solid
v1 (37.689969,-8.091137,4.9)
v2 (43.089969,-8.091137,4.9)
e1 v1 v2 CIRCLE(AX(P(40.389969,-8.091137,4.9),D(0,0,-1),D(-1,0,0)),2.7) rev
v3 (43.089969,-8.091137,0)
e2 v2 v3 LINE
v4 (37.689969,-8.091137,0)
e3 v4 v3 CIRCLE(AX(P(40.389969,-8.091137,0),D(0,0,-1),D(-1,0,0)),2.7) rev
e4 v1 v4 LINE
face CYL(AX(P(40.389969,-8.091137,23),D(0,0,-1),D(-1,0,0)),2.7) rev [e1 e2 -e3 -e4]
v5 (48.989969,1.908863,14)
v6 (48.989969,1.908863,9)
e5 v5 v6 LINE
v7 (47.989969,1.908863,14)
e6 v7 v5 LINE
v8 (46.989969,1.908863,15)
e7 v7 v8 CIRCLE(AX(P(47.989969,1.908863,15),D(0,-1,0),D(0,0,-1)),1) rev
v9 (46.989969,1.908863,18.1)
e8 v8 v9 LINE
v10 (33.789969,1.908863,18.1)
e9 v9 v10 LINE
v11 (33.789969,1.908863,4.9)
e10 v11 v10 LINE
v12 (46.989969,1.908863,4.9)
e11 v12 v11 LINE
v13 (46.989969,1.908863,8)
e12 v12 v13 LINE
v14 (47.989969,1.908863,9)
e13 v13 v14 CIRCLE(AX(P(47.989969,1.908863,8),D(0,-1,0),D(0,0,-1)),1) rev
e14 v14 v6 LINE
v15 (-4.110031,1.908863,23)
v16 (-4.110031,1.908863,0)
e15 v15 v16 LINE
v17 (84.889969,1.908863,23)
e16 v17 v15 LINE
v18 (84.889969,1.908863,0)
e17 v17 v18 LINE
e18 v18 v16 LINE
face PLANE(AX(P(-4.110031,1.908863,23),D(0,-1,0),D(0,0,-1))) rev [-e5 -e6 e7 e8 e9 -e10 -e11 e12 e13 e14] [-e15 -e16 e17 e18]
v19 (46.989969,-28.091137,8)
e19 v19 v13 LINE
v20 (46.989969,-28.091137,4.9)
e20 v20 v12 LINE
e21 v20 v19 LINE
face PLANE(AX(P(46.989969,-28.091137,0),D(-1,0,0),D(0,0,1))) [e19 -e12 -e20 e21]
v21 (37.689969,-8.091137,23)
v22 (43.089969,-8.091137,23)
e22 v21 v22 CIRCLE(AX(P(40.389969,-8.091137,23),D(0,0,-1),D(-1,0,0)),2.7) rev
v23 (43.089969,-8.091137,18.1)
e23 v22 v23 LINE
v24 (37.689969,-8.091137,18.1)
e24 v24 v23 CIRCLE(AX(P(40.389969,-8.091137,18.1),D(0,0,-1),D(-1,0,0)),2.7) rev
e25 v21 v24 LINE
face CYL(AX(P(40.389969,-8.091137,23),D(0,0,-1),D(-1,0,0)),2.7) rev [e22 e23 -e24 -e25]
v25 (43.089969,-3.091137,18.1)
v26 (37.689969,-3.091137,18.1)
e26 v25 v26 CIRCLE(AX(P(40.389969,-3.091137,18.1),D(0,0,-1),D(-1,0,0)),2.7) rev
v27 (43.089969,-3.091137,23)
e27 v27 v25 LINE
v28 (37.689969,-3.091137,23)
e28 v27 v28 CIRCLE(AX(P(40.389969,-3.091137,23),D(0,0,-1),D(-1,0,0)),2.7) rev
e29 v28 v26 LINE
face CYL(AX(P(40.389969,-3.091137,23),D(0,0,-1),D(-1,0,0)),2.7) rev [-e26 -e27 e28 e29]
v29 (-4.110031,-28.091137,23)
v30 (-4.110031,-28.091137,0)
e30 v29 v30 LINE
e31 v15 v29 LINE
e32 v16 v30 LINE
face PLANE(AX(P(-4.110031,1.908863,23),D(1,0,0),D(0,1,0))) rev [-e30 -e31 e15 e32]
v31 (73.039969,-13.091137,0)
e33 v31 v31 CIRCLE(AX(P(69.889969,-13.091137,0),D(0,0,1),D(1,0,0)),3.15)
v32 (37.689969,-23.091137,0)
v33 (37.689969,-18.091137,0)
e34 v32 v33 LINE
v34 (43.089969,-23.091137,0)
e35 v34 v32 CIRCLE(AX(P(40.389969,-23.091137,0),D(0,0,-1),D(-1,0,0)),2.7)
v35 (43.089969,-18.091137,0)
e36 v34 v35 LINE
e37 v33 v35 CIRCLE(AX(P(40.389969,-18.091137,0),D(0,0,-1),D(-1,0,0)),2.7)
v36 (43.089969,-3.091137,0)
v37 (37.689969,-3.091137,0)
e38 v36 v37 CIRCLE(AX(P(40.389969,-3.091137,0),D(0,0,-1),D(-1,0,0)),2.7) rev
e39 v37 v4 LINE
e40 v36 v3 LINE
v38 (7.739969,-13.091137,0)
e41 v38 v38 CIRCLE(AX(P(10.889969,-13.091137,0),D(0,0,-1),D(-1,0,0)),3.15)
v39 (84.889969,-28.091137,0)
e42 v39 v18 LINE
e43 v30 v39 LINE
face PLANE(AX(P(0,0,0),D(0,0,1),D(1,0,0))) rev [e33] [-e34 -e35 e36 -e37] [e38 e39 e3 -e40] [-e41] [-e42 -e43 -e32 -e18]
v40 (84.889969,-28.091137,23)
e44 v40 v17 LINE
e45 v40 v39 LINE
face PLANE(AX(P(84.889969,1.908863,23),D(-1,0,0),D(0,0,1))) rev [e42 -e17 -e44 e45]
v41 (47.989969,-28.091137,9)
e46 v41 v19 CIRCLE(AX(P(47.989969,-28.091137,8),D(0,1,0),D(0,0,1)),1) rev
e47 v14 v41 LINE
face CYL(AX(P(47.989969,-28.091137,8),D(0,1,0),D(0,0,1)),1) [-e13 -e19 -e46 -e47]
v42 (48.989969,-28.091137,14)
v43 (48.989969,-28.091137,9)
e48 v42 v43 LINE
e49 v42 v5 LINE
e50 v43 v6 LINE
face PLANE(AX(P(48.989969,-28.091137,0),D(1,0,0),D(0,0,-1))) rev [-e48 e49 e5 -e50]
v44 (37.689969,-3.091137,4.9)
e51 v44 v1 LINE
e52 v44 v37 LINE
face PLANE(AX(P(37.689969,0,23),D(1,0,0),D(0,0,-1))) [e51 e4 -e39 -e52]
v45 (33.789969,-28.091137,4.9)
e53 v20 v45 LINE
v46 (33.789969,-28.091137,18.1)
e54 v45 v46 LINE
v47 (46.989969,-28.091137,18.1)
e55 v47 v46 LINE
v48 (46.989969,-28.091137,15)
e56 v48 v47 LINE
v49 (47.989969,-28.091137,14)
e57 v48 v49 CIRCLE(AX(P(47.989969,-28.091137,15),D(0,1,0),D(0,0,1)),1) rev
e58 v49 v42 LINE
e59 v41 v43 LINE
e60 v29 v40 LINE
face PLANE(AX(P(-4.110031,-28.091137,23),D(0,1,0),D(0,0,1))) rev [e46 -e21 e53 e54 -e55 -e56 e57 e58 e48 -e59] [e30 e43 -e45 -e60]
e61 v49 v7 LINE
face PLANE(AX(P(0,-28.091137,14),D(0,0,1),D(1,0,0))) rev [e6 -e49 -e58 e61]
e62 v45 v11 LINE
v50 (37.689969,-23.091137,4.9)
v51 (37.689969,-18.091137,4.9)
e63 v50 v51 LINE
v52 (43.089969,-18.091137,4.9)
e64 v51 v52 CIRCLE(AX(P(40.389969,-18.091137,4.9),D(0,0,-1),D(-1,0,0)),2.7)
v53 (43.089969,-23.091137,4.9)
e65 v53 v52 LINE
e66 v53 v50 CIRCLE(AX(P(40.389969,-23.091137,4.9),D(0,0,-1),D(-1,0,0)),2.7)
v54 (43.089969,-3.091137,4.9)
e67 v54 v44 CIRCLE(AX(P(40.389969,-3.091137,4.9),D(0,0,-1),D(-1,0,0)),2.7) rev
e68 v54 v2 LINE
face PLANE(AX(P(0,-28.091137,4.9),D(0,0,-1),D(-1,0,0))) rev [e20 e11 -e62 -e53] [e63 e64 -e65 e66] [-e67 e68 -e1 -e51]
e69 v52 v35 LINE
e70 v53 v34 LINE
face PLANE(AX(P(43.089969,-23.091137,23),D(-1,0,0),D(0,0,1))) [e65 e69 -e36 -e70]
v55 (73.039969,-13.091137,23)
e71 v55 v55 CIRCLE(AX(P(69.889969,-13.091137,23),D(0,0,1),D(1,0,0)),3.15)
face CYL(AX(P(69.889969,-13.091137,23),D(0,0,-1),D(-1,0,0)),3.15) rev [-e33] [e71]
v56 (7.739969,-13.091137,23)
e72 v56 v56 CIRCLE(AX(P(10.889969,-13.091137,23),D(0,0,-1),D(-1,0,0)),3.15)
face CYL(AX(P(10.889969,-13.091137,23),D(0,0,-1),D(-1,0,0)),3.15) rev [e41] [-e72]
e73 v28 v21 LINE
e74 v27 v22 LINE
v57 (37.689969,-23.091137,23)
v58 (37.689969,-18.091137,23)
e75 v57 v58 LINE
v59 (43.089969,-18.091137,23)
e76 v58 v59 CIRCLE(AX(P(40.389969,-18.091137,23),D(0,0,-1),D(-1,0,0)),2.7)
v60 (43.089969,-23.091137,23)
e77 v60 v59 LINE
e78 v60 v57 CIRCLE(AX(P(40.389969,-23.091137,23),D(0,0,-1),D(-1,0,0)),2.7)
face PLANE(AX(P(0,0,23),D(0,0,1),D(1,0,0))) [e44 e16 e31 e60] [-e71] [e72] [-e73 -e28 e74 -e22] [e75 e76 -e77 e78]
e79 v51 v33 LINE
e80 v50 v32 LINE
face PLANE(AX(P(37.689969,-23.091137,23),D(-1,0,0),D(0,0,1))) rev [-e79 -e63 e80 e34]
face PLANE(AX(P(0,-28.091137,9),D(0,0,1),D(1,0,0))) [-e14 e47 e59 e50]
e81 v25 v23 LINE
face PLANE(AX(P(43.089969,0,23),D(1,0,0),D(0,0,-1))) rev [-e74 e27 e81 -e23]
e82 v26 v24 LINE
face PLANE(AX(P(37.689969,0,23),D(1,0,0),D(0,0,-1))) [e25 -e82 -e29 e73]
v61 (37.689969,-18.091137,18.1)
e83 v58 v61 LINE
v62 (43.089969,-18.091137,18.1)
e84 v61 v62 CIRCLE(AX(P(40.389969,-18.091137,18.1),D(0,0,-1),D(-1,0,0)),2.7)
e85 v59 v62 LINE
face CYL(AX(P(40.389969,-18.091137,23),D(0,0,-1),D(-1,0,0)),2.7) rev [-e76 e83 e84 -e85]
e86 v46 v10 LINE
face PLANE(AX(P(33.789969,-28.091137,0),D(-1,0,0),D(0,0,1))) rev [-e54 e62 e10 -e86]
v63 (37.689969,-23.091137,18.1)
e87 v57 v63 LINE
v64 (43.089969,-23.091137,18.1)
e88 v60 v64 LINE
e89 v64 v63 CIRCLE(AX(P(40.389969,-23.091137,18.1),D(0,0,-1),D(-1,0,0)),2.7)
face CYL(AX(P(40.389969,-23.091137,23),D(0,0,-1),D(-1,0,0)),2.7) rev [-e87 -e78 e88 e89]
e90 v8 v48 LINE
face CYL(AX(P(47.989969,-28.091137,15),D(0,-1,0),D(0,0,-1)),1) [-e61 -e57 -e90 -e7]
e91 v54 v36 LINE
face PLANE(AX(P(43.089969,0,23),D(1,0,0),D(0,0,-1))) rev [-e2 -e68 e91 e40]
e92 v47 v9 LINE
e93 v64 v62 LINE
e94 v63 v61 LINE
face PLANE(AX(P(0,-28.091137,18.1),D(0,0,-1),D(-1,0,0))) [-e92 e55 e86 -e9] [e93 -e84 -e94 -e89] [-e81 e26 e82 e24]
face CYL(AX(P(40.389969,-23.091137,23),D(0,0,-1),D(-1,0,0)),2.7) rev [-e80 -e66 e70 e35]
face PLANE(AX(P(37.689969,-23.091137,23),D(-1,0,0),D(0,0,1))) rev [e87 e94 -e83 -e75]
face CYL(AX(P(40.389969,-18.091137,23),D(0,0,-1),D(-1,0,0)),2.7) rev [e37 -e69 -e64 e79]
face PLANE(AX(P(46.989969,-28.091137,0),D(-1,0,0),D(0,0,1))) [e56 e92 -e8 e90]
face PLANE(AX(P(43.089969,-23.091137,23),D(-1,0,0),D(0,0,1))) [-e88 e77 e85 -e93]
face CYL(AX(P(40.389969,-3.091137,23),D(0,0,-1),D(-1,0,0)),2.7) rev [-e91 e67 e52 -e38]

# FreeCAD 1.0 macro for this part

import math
import FreeCAD as App
import Part
import Sketcher
from FreeCAD import Vector
Q = App.Units.Quantity


def edges_at(feature, points):
    """Names of the edges that pass closest to the given points."""
    edges = feature.Shape.Edges
    near = lambda p: min(range(len(edges)), key=lambda i: edges[i].distToShape(Part.Vertex(*p))[0])
    return sorted({f"Edge{near(p) + 1}" for p in points})

doc = App.newDocument("Part")
body = doc.addObject("PartDesign::Body", "Body")

sketch1 = body.newObject("Sketcher::SketchObject", "Sketch")
sketch1.AttachmentSupport = (doc.getObject("XY_Plane"), [""])
sketch1.MapMode = "FlatFace"
sketch1.addGeometry(Part.LineSegment(Vector(-4.110031, 1.908863, 0), Vector(-4.110031, -28.091137, 0)), False)
sketch1.addGeometry(Part.LineSegment(Vector(-4.110031, -28.091137, 0), Vector(84.889969, -28.091137, 0)), False)
sketch1.addGeometry(Part.LineSegment(Vector(84.889969, -28.091137, 0), Vector(84.889969, 1.908863, 0)), False)
sketch1.addGeometry(Part.LineSegment(Vector(84.889969, 1.908863, 0), Vector(-4.110031, 1.908863, 0)), False)
sketch1.addConstraint(Sketcher.Constraint("Coincident", 0, 2, 1, 1))
sketch1.addConstraint(Sketcher.Constraint("Coincident", 1, 2, 2, 1))
sketch1.addConstraint(Sketcher.Constraint("Coincident", 2, 2, 3, 1))
sketch1.addConstraint(Sketcher.Constraint("Coincident", 3, 2, 0, 1))
sketch1.addConstraint(Sketcher.Constraint("Vertical", 0))
sketch1.addConstraint(Sketcher.Constraint("Horizontal", 1))
sketch1.addConstraint(Sketcher.Constraint("Vertical", 2))
sketch1.addConstraint(Sketcher.Constraint("Horizontal", 3))
sketch1.addConstraint(Sketcher.Constraint("DistanceX", 1, 1, 1, 2, Q("89 mm")))
sketch1.addConstraint(Sketcher.Constraint("DistanceY", 0, 2, 0, 1, Q("30 mm")))
sketch1.addConstraint(Sketcher.Constraint("DistanceX", 0, 2, -1, 1, Q("4.110031 mm")))
sketch1.addConstraint(Sketcher.Constraint("DistanceY", 0, 2, -1, 1, Q("28.091137 mm")))
pad1 = body.newObject("PartDesign::Pad", "Pad")
pad1.Profile = sketch1
pad1.Length = 23

sketch2 = body.newObject("Sketcher::SketchObject", "Sketch001")
sketch2.AttachmentSupport = (doc.getObject("XZ_Plane"), [""])
sketch2.MapMode = "FlatFace"
sketch2.AttachmentOffset = App.Placement(Vector(0, 0, -1.908863), App.Rotation())
sketch2.addGeometry(Part.LineSegment(Vector(33.789969, 4.9, 0), Vector(33.789969, 18.1, 0)), False)
sketch2.addGeometry(Part.LineSegment(Vector(33.789969, 18.1, 0), Vector(46.989969, 18.1, 0)), False)
sketch2.addGeometry(Part.LineSegment(Vector(46.989969, 18.1, 0), Vector(46.989969, 14, 0)), False)
sketch2.addGeometry(Part.LineSegment(Vector(46.989969, 14, 0), Vector(48.989969, 14, 0)), False)
sketch2.addGeometry(Part.LineSegment(Vector(48.989969, 14, 0), Vector(48.989969, 9, 0)), False)
sketch2.addGeometry(Part.LineSegment(Vector(48.989969, 9, 0), Vector(46.989969, 9, 0)), False)
sketch2.addGeometry(Part.LineSegment(Vector(46.989969, 9, 0), Vector(46.989969, 4.9, 0)), False)
sketch2.addGeometry(Part.LineSegment(Vector(46.989969, 4.9, 0), Vector(33.789969, 4.9, 0)), False)
sketch2.addConstraint(Sketcher.Constraint("Coincident", 0, 2, 1, 1))
sketch2.addConstraint(Sketcher.Constraint("Coincident", 1, 2, 2, 1))
sketch2.addConstraint(Sketcher.Constraint("Coincident", 2, 2, 3, 1))
sketch2.addConstraint(Sketcher.Constraint("Coincident", 3, 2, 4, 1))
sketch2.addConstraint(Sketcher.Constraint("Coincident", 4, 2, 5, 1))
sketch2.addConstraint(Sketcher.Constraint("Coincident", 5, 2, 6, 1))
sketch2.addConstraint(Sketcher.Constraint("Coincident", 6, 2, 7, 1))
sketch2.addConstraint(Sketcher.Constraint("Coincident", 7, 2, 0, 1))
sketch2.addConstraint(Sketcher.Constraint("Vertical", 0))
sketch2.addConstraint(Sketcher.Constraint("Horizontal", 1))
sketch2.addConstraint(Sketcher.Constraint("Vertical", 2))
sketch2.addConstraint(Sketcher.Constraint("Horizontal", 3))
sketch2.addConstraint(Sketcher.Constraint("Vertical", 4))
sketch2.addConstraint(Sketcher.Constraint("Horizontal", 5))
sketch2.addConstraint(Sketcher.Constraint("Vertical", 6))
sketch2.addConstraint(Sketcher.Constraint("Horizontal", 7))
sketch2.addConstraint(Sketcher.Constraint("Vertical", 2, 2, 5, 2))
sketch2.addConstraint(Sketcher.Constraint("Equal", 7, 0))
sketch2.addConstraint(Sketcher.Constraint("Equal", 2, 6))
sketch2.addConstraint(Sketcher.Constraint("DistanceX", 3, 1, 3, 2, Q("2 mm")))
sketch2.addConstraint(Sketcher.Constraint("DistanceY", 4, 2, 4, 1, Q("5 mm")))
sketch2.addConstraint(Sketcher.Constraint("DistanceX", 1, 1, 1, 2, Q("13.2 mm")))
sketch2.addConstraint(Sketcher.Constraint("DistanceY", -1, 1, 2, 2, Q("14 mm")))
sketch2.addConstraint(Sketcher.Constraint("DistanceX", -1, 1, 0, 2, Q("33.789969 mm")))
pocket1 = body.newObject("PartDesign::Pocket", "Pocket")
pocket1.Profile = sketch2
pocket1.Type = "ThroughAll"
pocket1.Reversed = True

sketch3 = body.newObject("Sketcher::SketchObject", "Sketch002")
sketch3.AttachmentSupport = (doc.getObject("XY_Plane"), [""])
sketch3.MapMode = "FlatFace"
sketch3.addGeometry(Part.Circle(Vector(10.889969, -13.091137, 0), Vector(0, 0, 1), 3.15), False)
sketch3.addGeometry(Part.Circle(Vector(69.889969, -13.091137, 0), Vector(0, 0, 1), 3.15), False)
sketch3.addConstraint(Sketcher.Constraint("Equal", 0, 1))
sketch3.addConstraint(Sketcher.Constraint("Horizontal", 0, 3, 1, 3))
sketch3.addConstraint(Sketcher.Constraint("Diameter", 0, Q("6.3 mm")))
sketch3.addConstraint(Sketcher.Constraint("DistanceX", 0, 3, 1, 3, Q("59 mm")))
sketch3.addConstraint(Sketcher.Constraint("DistanceX", -1, 1, 0, 3, Q("10.889969 mm")))
sketch3.addConstraint(Sketcher.Constraint("DistanceY", 0, 3, -1, 1, Q("13.091137 mm")))
pocket2 = body.newObject("PartDesign::Pocket", "Pocket001")
pocket2.Profile = sketch3
pocket2.Type = "ThroughAll"
pocket2.Reversed = True

sketch4 = body.newObject("Sketcher::SketchObject", "Sketch003")
sketch4.AttachmentSupport = (doc.getObject("XY_Plane"), [""])
sketch4.MapMode = "FlatFace"
sketch4.addGeometry(Part.ArcOfCircle(Part.Circle(Vector(40.389969, -8.091137, 0), Vector(0, 0, 1), 2.7), math.radians(180), math.radians(360)), False)
sketch4.addGeometry(Part.LineSegment(Vector(37.689969, -8.091137, 0), Vector(37.689969, -3.091137, 0)), False)
sketch4.addGeometry(Part.ArcOfCircle(Part.Circle(Vector(40.389969, -3.091137, 0), Vector(0, 0, 1), 2.7), math.radians(0), math.radians(180)), False)
sketch4.addGeometry(Part.LineSegment(Vector(43.089969, -3.091137, 0), Vector(43.089969, -8.091137, 0)), False)
sketch4.addGeometry(Part.LineSegment(Vector(43.089969, -18.091137, 0), Vector(43.089969, -23.091137, 0)), False)
sketch4.addGeometry(Part.ArcOfCircle(Part.Circle(Vector(40.389969, -23.091137, 0), Vector(0, 0, 1), 2.7), math.radians(180), math.radians(360)), False)
sketch4.addGeometry(Part.LineSegment(Vector(37.689969, -23.091137, 0), Vector(37.689969, -18.091137, 0)), False)
sketch4.addGeometry(Part.ArcOfCircle(Part.Circle(Vector(40.389969, -18.091137, 0), Vector(0, 0, 1), 2.7), math.radians(0), math.radians(180)), False)
sketch4.addConstraint(Sketcher.Constraint("Tangent", 0, 1, 1, 1))
sketch4.addConstraint(Sketcher.Constraint("Tangent", 1, 2, 2, 2))
sketch4.addConstraint(Sketcher.Constraint("Tangent", 2, 1, 3, 1))
sketch4.addConstraint(Sketcher.Constraint("Tangent", 3, 2, 0, 2))
sketch4.addConstraint(Sketcher.Constraint("Tangent", 4, 2, 5, 2))
sketch4.addConstraint(Sketcher.Constraint("Tangent", 5, 1, 6, 1))
sketch4.addConstraint(Sketcher.Constraint("Tangent", 6, 2, 7, 2))
sketch4.addConstraint(Sketcher.Constraint("Tangent", 7, 1, 4, 1))
sketch4.addConstraint(Sketcher.Constraint("Vertical", 1))
sketch4.addConstraint(Sketcher.Constraint("Vertical", 3))
sketch4.addConstraint(Sketcher.Constraint("Vertical", 4))
sketch4.addConstraint(Sketcher.Constraint("Vertical", 6))
sketch4.addConstraint(Sketcher.Constraint("Equal", 2, 5))
sketch4.addConstraint(Sketcher.Constraint("Vertical", 2, 3, 5, 3))
sketch4.addConstraint(Sketcher.Constraint("Equal", 3, 4))
sketch4.addConstraint(Sketcher.Constraint("Radius", 0, Q("2.7 mm")))
sketch4.addConstraint(Sketcher.Constraint("DistanceY", 1, 1, 1, 2, Q("5 mm")))
sketch4.addConstraint(Sketcher.Constraint("DistanceY", 5, 3, 0, 3, Q("15 mm")))
sketch4.addConstraint(Sketcher.Constraint("DistanceX", -1, 1, 0, 3, Q("40.389969 mm")))
sketch4.addConstraint(Sketcher.Constraint("DistanceY", 0, 3, -1, 1, Q("8.091137 mm")))
pocket3 = body.newObject("PartDesign::Pocket", "Pocket002")
pocket3.Profile = sketch4
pocket3.Type = "ThroughAll"
pocket3.Reversed = True
doc.recompute()

fillet = body.newObject("PartDesign::Fillet", "Fillet")
fillet.Base = (pocket3, edges_at(pocket3, [(46.99, -13.091, 9), (46.99, -13.091, 14)]))
fillet.Radius = 1

doc.recompute()
